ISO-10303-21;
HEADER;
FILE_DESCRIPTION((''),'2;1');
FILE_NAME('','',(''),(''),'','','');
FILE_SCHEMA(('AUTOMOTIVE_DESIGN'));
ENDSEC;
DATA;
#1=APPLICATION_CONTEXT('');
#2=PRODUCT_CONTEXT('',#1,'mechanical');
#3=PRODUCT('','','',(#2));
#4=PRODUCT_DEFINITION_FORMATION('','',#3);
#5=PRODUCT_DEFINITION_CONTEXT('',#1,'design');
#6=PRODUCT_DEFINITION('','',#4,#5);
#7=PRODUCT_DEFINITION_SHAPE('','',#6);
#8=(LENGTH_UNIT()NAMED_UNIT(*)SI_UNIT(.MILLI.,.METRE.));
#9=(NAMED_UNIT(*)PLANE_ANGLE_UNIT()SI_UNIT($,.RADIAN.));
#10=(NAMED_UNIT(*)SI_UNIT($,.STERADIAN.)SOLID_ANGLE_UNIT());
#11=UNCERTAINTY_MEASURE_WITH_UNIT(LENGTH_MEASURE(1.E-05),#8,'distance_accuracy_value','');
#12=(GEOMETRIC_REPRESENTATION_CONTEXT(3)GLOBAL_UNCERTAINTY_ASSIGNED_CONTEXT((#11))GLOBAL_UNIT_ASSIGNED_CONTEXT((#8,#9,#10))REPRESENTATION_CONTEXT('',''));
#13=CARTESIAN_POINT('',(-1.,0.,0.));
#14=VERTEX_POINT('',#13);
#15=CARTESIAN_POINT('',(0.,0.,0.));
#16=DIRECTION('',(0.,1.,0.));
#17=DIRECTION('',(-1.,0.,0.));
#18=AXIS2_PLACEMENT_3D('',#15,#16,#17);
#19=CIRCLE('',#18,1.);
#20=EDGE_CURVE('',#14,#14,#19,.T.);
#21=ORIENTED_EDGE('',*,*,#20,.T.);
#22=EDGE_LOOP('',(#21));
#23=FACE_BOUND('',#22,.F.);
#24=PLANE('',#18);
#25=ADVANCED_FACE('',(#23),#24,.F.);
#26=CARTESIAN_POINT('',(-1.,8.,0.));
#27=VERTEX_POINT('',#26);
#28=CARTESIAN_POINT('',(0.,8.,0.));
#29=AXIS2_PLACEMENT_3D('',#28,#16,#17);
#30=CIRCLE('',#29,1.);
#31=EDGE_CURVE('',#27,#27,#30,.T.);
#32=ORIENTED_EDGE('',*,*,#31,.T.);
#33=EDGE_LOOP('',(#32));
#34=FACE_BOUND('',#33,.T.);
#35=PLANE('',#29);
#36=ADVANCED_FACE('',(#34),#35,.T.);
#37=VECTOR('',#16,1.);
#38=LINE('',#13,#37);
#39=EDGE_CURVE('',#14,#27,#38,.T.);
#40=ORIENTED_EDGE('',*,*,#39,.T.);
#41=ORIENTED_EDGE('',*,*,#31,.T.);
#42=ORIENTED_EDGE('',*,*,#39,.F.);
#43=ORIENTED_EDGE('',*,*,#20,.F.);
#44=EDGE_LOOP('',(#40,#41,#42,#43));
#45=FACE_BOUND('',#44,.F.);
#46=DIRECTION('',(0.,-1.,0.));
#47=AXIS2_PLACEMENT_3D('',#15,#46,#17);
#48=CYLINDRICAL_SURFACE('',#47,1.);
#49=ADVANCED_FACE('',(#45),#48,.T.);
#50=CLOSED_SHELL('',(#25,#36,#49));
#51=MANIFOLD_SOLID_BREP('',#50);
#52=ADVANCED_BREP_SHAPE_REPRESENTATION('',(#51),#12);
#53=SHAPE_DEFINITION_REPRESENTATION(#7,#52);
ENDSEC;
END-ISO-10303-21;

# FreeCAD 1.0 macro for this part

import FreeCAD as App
import Part
import Sketcher
Q = App.Units.Quantity

doc = App.newDocument("Part")
params = doc.addObject("Spreadsheet::Sheet", "Params")
for row, (alias, value) in enumerate([
    ("sketch1_diameter", "2 mm"),
    ("pad1_length", "8 mm"),
], start=1):
    params.set(f"A{row}", alias)
    params.set(f"B{row}", "=" + value)
    params.setAlias(f"B{row}", alias)

body = doc.addObject("PartDesign::Body", "Body")

# Sketch on XZ plane
sketch1 = body.newObject("Sketcher::SketchObject", "Sketch")
sketch1.AttachmentSupport = (doc.getObject("XZ_Plane"), [""])
sketch1.MapMode = "FlatFace"
sketch1.addGeometry(Part.Circle(App.Vector(0, 0, 0), App.Vector(0, 0, 1), 1), False)
sketch1.addConstraint([
    Sketcher.Constraint("Coincident", 0, 3, -1, 1),
    Sketcher.Constraint("Diameter", 0, Q("2 mm")),
])
sketch1.setExpression("Constraints[1]", "Params.sketch1_diameter")
pad1 = body.newObject("PartDesign::Pad", "Pad")
pad1.Profile = sketch1
pad1.setExpression("Length", "Params.pad1_length")
pad1.Reversed = True

doc.recompute()
